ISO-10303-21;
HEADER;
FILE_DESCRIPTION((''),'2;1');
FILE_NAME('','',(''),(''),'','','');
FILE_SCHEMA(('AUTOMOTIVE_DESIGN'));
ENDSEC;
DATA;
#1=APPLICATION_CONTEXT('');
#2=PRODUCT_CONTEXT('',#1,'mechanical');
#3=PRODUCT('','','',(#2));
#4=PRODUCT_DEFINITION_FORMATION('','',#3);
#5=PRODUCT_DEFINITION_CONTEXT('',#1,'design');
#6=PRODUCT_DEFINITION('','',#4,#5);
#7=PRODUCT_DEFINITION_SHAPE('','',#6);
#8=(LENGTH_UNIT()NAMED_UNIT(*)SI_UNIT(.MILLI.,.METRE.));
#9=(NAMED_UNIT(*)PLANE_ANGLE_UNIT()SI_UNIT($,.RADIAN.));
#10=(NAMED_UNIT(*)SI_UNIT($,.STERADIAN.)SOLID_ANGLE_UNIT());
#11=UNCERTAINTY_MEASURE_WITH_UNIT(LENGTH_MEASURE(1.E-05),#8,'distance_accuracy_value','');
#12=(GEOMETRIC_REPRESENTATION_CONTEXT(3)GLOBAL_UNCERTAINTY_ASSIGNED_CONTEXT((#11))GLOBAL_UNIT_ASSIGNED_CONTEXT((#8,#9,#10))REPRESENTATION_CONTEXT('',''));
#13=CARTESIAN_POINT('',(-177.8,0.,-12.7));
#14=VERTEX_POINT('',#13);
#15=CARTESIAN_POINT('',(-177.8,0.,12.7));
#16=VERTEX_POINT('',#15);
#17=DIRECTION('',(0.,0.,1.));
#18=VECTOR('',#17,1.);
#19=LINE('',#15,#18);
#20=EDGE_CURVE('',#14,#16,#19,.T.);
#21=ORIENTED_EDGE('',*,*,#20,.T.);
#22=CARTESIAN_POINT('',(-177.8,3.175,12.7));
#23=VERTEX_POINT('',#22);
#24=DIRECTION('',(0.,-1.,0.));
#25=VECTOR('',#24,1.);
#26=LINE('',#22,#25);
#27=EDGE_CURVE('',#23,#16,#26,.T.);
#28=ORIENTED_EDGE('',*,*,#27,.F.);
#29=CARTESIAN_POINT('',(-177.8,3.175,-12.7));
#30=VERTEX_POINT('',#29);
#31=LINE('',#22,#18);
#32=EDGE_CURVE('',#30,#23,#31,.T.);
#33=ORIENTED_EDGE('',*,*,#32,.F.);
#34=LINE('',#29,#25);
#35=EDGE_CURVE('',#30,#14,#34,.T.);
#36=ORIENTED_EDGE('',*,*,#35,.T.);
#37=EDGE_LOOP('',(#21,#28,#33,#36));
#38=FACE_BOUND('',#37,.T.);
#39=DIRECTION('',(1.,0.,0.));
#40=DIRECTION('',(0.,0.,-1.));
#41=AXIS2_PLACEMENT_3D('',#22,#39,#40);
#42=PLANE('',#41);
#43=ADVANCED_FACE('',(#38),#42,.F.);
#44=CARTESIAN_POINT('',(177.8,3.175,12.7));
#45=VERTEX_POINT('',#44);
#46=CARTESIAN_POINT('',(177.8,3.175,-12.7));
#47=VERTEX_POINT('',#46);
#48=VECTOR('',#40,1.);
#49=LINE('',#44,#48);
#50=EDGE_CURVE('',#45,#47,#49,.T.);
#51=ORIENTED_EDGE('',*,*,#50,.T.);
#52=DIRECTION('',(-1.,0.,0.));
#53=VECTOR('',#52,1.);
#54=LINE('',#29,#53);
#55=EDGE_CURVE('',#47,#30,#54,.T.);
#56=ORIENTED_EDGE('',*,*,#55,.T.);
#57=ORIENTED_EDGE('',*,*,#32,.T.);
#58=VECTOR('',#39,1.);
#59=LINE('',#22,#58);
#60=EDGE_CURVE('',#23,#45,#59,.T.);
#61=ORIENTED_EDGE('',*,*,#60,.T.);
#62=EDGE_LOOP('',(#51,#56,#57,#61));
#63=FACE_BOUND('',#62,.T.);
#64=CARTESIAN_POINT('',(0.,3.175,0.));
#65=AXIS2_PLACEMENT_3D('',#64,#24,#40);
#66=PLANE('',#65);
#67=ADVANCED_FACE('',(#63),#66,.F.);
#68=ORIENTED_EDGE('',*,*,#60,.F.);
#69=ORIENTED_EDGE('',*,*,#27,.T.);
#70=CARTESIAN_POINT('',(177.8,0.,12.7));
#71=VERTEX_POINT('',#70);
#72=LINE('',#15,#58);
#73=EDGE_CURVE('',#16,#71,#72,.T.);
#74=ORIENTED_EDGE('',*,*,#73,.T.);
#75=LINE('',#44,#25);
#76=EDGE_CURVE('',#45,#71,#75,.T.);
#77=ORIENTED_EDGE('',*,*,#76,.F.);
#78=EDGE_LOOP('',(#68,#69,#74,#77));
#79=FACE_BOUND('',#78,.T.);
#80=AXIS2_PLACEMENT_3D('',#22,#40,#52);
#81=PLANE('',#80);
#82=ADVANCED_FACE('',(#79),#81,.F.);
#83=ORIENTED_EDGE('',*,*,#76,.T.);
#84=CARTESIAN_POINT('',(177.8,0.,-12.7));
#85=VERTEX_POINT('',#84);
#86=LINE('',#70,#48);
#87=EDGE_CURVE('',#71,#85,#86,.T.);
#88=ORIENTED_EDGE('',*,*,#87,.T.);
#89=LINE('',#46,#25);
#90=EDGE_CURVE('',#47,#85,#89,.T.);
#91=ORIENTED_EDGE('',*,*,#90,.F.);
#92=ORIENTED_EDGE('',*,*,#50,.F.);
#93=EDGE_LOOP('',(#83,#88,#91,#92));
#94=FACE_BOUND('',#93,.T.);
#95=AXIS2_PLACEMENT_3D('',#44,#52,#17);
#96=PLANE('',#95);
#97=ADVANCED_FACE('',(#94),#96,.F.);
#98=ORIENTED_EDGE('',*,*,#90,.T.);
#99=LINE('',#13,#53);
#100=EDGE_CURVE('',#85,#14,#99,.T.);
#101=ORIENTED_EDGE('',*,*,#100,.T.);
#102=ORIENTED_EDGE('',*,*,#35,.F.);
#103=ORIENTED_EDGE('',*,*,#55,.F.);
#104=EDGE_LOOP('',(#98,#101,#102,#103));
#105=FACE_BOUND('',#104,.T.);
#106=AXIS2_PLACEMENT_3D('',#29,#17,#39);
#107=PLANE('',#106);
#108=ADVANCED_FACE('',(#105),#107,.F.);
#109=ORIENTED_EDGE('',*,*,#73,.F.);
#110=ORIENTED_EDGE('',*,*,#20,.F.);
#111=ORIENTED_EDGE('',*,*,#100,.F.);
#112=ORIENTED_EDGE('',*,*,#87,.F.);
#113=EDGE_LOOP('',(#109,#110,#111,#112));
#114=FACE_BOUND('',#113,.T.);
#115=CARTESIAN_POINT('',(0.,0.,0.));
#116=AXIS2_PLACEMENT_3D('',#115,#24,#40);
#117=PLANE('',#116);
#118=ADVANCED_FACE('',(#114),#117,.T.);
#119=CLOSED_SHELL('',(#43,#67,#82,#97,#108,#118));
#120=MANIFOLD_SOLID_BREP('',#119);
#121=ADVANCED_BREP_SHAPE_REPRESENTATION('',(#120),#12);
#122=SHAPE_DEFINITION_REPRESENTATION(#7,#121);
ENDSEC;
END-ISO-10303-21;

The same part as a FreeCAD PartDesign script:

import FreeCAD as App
import Part
import Sketcher
Q = App.Units.Quantity


def add_polygon(sketch, points):
    """Adds a closed chain of lines whose ends are joined by coincident constraints."""
    first, n = sketch.GeometryCount, len(points)
    for a, b in zip(points, points[1:] + points[:1]):
        sketch.addGeometry(Part.LineSegment(App.Vector(*a, 0), App.Vector(*b, 0)), False)
    for i in range(n):
        sketch.addConstraint(Sketcher.Constraint("Coincident", first + i, 2, first + (i + 1) % n, 1))

doc = App.newDocument("Part")
body = doc.addObject("PartDesign::Body", "Body")

# Sketch on XZ plane
sketch1 = body.newObject("Sketcher::SketchObject", "Sketch")
sketch1.AttachmentSupport = (doc.getObject("XZ_Plane"), [""])
sketch1.MapMode = "FlatFace"
add_polygon(sketch1, [(-178, -13), (-178, 13), (178, 13), (178, -13)])  # lines 0-3
sketch1.addConstraint([
    Sketcher.Constraint("Vertical", 0),
    Sketcher.Constraint("Horizontal", 1),
    Sketcher.Constraint("Vertical", 2),
    Sketcher.Constraint("Horizontal", 3),
    Sketcher.Constraint("Symmetric", 0, 2, 2, 2, -1, 1),
    Sketcher.Constraint("DistanceX", 1, 1, 1, 2, Q("14 in")),
    Sketcher.Constraint("DistanceY", 0, 1, 0, 2, Q("1 in")),
])
pad1 = body.newObject("PartDesign::Pad", "Pad")
pad1.Profile = sketch1
pad1.Length = Q("0.125 in")
pad1.Reversed = True

doc.recompute()
